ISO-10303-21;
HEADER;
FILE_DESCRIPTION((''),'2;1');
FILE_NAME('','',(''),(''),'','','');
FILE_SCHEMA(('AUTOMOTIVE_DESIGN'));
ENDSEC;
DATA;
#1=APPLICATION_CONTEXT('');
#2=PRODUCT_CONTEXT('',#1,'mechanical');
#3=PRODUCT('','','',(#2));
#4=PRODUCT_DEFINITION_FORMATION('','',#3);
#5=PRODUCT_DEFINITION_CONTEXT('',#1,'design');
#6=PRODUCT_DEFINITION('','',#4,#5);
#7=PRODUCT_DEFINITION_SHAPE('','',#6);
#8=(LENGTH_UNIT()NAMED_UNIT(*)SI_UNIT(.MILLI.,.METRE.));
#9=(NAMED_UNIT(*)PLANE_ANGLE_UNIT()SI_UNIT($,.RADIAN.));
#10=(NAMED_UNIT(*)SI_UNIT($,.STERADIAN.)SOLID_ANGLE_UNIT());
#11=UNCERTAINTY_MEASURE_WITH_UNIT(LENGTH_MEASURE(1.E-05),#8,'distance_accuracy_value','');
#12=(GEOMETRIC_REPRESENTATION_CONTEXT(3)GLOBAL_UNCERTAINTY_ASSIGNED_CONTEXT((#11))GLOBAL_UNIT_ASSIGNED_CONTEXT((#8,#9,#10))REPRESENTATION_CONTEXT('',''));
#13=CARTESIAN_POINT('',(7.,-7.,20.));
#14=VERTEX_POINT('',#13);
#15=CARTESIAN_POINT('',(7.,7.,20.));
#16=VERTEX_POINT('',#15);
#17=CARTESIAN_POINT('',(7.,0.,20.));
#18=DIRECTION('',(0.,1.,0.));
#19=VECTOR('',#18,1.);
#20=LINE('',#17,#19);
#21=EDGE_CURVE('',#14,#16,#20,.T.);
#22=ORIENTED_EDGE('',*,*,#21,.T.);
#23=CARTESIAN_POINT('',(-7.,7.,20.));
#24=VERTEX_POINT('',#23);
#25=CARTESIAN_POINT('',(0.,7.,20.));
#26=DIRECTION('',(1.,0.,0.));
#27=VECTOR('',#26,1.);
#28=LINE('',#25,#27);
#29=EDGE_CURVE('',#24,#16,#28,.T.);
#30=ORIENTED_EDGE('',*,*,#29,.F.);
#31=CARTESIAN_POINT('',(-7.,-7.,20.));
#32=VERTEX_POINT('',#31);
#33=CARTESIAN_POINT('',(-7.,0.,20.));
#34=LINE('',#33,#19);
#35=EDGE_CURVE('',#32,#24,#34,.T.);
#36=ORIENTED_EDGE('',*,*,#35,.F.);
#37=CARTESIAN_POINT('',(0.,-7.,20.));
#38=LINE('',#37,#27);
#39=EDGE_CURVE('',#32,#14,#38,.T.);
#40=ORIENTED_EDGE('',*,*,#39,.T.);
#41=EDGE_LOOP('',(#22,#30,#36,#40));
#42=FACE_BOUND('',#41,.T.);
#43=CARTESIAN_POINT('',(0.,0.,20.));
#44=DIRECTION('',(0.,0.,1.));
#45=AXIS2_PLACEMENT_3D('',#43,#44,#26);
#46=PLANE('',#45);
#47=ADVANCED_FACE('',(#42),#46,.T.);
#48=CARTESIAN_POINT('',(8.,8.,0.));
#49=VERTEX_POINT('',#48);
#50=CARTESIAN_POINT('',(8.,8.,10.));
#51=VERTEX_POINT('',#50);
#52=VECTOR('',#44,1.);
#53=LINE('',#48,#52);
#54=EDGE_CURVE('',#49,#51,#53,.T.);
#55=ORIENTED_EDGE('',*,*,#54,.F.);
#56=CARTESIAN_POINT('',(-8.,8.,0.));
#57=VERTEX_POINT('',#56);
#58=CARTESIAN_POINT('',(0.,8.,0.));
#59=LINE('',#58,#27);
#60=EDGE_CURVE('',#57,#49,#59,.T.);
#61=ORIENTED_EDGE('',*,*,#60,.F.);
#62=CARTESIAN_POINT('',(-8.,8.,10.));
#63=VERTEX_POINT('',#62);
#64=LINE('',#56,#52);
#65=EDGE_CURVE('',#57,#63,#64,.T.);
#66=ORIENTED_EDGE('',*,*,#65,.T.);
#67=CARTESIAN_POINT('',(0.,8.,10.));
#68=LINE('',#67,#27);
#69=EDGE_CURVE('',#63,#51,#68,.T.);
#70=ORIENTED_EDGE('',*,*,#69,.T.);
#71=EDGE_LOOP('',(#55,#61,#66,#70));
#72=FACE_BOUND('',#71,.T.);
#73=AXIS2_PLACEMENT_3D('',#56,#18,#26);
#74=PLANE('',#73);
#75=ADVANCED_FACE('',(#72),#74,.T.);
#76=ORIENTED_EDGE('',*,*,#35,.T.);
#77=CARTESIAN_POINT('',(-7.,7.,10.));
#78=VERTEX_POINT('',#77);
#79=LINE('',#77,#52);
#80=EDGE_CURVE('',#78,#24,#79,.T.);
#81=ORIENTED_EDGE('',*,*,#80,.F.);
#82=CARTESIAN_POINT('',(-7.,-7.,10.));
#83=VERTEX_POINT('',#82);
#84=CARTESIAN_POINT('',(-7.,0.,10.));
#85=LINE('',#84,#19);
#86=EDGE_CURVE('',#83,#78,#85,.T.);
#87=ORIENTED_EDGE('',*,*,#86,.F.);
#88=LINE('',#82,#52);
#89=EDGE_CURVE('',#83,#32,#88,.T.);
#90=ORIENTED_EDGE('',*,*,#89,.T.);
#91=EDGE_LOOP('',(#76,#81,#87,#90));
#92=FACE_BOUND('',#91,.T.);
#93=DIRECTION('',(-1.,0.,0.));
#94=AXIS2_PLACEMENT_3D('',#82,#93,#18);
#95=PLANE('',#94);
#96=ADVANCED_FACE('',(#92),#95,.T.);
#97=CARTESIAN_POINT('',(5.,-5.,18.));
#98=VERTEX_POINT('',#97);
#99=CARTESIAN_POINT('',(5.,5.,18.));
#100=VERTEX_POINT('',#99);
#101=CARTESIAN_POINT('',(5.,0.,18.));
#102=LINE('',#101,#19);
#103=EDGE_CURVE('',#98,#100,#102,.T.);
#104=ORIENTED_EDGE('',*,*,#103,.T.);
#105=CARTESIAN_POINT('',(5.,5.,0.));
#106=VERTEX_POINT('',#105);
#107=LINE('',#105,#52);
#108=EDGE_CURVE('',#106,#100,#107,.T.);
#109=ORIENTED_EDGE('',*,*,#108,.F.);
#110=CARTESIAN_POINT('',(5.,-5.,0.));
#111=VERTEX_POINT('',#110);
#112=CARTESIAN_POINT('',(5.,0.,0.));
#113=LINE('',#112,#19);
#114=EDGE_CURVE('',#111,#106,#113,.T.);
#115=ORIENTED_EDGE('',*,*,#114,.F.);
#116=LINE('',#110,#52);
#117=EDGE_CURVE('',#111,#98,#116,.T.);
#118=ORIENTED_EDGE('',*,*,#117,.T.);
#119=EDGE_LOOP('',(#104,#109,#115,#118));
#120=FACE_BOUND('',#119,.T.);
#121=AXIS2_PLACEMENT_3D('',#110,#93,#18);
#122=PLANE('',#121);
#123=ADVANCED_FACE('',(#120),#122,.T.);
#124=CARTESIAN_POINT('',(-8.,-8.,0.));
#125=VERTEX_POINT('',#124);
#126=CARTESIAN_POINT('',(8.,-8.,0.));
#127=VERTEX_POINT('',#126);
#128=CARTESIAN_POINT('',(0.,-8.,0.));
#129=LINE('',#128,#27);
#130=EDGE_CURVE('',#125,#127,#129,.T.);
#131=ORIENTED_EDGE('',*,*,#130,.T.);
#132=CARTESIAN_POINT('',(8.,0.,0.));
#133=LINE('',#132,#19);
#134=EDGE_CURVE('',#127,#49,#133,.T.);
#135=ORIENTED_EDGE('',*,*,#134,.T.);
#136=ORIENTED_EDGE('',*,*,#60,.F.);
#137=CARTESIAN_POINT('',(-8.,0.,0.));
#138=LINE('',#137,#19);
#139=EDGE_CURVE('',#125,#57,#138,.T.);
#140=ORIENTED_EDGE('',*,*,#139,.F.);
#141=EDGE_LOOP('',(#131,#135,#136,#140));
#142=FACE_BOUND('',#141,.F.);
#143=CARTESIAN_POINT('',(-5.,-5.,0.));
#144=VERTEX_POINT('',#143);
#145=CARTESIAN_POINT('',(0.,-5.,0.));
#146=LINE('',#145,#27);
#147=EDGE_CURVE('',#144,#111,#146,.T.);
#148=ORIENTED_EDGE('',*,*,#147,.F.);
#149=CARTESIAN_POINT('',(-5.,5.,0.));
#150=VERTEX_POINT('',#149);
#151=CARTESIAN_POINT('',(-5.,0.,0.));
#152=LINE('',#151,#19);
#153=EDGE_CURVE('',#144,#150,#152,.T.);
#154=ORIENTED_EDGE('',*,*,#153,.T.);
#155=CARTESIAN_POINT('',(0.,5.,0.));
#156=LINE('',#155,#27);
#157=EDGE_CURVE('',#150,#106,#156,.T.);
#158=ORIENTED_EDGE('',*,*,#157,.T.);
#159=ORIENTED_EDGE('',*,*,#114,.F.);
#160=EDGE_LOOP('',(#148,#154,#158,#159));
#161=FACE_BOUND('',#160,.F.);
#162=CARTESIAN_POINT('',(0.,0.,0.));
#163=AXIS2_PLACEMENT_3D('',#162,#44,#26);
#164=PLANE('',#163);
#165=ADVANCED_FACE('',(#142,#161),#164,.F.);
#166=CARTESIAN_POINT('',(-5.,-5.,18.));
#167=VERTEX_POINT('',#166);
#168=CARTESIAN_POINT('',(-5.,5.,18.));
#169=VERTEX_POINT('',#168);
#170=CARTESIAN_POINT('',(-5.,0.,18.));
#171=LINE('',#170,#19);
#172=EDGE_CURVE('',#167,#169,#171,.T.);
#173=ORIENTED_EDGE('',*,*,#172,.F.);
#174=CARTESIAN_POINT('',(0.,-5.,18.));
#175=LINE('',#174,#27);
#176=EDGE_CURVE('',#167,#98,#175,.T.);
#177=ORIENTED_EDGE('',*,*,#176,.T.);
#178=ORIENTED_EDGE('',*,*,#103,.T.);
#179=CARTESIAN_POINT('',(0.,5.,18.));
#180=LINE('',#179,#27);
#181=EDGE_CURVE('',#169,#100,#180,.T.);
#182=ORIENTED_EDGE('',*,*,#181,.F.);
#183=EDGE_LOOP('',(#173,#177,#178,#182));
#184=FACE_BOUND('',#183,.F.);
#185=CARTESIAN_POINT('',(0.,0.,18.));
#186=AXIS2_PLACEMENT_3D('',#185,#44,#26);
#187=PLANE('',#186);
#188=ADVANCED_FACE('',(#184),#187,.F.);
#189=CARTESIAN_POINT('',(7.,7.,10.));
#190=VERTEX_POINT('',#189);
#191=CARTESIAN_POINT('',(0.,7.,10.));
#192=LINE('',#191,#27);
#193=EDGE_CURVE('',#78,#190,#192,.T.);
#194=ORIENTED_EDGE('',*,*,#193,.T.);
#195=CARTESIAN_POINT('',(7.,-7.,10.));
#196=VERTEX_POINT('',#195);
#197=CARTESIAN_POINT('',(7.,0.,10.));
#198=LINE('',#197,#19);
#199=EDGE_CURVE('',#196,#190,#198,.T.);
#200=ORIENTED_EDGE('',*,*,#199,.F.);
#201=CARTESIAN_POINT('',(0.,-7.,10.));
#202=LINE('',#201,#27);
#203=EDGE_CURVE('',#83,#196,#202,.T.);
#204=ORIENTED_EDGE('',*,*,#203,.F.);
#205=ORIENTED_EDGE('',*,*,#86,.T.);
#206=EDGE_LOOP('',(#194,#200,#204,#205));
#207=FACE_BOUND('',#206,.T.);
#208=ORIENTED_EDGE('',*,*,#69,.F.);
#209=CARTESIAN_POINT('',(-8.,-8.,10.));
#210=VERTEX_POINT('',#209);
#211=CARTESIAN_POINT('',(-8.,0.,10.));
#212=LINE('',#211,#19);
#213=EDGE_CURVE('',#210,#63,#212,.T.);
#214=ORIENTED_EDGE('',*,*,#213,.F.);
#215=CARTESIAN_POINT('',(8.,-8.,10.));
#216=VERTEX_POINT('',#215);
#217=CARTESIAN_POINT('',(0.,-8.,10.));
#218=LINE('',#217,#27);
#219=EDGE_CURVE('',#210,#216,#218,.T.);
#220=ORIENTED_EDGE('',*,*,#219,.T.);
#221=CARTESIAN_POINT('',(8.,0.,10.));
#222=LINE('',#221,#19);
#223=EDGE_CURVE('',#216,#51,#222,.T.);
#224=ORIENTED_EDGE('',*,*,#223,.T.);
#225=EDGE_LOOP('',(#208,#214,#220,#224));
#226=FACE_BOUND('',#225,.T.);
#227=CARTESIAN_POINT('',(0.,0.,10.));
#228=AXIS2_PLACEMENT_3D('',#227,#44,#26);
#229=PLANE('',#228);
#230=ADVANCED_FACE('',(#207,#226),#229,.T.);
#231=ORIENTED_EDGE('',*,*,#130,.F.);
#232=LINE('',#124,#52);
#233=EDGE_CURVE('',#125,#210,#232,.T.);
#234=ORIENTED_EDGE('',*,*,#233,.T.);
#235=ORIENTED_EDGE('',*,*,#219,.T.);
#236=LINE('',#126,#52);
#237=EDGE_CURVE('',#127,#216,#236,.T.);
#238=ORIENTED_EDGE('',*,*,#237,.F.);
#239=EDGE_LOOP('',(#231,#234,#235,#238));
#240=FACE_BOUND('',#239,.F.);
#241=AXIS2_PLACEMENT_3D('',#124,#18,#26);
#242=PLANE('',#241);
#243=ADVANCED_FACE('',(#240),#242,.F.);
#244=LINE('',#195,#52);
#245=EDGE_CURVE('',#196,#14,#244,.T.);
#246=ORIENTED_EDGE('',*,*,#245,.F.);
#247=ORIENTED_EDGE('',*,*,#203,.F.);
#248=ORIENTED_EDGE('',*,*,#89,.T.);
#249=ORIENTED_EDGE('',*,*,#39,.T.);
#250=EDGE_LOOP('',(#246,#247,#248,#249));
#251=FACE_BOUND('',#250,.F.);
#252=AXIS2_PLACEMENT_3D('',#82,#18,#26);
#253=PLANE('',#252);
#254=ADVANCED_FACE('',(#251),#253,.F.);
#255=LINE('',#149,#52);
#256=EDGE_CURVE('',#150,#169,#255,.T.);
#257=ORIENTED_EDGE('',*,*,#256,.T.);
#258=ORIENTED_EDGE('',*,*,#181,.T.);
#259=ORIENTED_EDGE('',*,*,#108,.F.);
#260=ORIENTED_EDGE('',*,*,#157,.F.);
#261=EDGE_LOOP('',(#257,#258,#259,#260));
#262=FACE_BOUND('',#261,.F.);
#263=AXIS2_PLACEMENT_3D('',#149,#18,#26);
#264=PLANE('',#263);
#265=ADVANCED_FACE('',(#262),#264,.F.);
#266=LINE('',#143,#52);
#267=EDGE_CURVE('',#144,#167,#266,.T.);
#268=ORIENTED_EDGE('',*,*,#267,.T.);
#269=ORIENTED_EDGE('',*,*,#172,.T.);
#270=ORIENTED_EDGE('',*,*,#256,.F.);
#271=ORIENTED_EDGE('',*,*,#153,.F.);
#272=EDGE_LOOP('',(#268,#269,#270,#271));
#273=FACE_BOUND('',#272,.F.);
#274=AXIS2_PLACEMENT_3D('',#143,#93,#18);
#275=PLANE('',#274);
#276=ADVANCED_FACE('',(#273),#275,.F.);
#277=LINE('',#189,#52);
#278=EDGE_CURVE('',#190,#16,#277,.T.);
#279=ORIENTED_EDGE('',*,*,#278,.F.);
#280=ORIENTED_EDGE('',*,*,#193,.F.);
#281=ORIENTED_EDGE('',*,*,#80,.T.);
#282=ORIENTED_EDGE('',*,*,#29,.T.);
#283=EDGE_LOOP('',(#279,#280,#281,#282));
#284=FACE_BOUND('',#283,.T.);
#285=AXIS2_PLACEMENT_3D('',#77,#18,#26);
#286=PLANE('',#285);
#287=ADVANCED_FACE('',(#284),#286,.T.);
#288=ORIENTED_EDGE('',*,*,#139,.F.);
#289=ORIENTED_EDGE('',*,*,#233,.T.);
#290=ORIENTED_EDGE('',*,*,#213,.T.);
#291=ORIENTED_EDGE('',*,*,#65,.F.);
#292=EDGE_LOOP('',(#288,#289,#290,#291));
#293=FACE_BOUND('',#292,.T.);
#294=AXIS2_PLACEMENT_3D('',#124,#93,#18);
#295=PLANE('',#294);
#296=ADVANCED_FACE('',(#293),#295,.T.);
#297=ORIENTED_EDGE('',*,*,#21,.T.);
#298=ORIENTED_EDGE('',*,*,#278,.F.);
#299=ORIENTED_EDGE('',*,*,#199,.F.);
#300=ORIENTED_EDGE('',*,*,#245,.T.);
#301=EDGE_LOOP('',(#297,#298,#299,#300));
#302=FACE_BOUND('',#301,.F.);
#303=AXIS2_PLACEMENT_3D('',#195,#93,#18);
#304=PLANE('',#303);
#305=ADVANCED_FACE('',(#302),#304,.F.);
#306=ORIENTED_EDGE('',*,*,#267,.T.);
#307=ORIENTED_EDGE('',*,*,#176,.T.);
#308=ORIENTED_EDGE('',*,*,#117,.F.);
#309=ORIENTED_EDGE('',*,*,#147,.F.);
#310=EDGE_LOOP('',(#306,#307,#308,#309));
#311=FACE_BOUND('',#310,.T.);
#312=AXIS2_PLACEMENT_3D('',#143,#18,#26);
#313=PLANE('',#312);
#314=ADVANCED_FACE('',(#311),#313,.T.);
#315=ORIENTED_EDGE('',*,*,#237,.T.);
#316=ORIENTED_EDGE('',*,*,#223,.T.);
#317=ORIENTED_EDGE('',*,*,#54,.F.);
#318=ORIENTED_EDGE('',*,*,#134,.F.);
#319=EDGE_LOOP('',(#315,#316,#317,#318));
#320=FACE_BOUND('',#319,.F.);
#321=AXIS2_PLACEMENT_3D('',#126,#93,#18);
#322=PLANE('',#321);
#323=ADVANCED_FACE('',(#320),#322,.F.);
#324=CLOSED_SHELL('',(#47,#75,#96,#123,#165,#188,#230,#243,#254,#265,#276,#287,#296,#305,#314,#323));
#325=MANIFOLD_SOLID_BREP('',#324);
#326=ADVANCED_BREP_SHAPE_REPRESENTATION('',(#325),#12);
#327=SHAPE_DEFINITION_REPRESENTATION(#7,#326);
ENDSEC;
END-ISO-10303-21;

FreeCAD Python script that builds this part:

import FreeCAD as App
import Part
import Sketcher
from FreeCAD import Vector

doc = App.newDocument("Part")
body = doc.addObject("PartDesign::Body", "Body")

sketch1 = doc.addObject("Sketcher::SketchObject", "Sketch")
body.addObject(sketch1)
sketch1.AttachmentSupport = (doc.XY_Plane, [""])
sketch1.MapMode = "FlatFace"
sketch1.addGeometry(Part.LineSegment(Vector(-5, 5, 0), Vector(-5, -5, 0)), False)
sketch1.addGeometry(Part.LineSegment(Vector(-5, -5, 0), Vector(5, -5, 0)), False)
sketch1.addGeometry(Part.LineSegment(Vector(5, -5, 0), Vector(5, 5, 0)), False)
sketch1.addGeometry(Part.LineSegment(Vector(5, 5, 0), Vector(-5, 5, 0)), False)
sketch1.addConstraint(Sketcher.Constraint("Coincident", 0, 2, 1, 1))
sketch1.addConstraint(Sketcher.Constraint("Coincident", 1, 2, 2, 1))
sketch1.addConstraint(Sketcher.Constraint("Coincident", 2, 2, 3, 1))
sketch1.addConstraint(Sketcher.Constraint("Coincident", 3, 2, 0, 1))
sketch1.addConstraint(Sketcher.Constraint("Vertical", 0))
sketch1.addConstraint(Sketcher.Constraint("Horizontal", 1))
sketch1.addConstraint(Sketcher.Constraint("Vertical", 2))
sketch1.addConstraint(Sketcher.Constraint("Horizontal", 3))
sketch1.addConstraint(Sketcher.Constraint("Symmetric", 0, 2, 2, 2, -1, 1))
sketch1.addConstraint(Sketcher.Constraint("Equal", 3, 0))
sketch1.addConstraint(Sketcher.Constraint("DistanceX", 1, 1, 1, 2, 10.0))
pad1 = doc.addObject("PartDesign::Pad", "Pad")
body.addObject(pad1)
pad1.Profile = sketch1
pad1.Length = 18
body2 = doc.addObject("PartDesign::Body", "Body001")

sketch2 = doc.addObject("Sketcher::SketchObject", "Sketch001")
body2.addObject(sketch2)
sketch2.AttachmentSupport = (doc.getObject("XY_Plane001"), [""])
sketch2.MapMode = "FlatFace"
sketch2.AttachmentOffset = App.Placement(Vector(0, 0, 10), App.Rotation())
sketch2.addGeometry(Part.LineSegment(Vector(-7, 7, 0), Vector(-7, -7, 0)), False)
sketch2.addGeometry(Part.LineSegment(Vector(-7, -7, 0), Vector(7, -7, 0)), False)
sketch2.addGeometry(Part.LineSegment(Vector(7, -7, 0), Vector(7, 7, 0)), False)
sketch2.addGeometry(Part.LineSegment(Vector(7, 7, 0), Vector(-7, 7, 0)), False)
sketch2.addConstraint(Sketcher.Constraint("Coincident", 0, 2, 1, 1))
sketch2.addConstraint(Sketcher.Constraint("Coincident", 1, 2, 2, 1))
sketch2.addConstraint(Sketcher.Constraint("Coincident", 2, 2, 3, 1))
sketch2.addConstraint(Sketcher.Constraint("Coincident", 3, 2, 0, 1))
sketch2.addConstraint(Sketcher.Constraint("Vertical", 0))
sketch2.addConstraint(Sketcher.Constraint("Horizontal", 1))
sketch2.addConstraint(Sketcher.Constraint("Vertical", 2))
sketch2.addConstraint(Sketcher.Constraint("Horizontal", 3))
sketch2.addConstraint(Sketcher.Constraint("Symmetric", 0, 2, 2, 2, -1, 1))
sketch2.addConstraint(Sketcher.Constraint("Equal", 3, 0))
sketch2.addConstraint(Sketcher.Constraint("DistanceX", 1, 1, 1, 2, 14.0))
pad2 = doc.addObject("PartDesign::Pad", "Pad001")
body2.addObject(pad2)
pad2.Profile = sketch2
pad2.Length = 10
body3 = doc.addObject("PartDesign::Body", "Body002")

sketch3 = doc.addObject("Sketcher::SketchObject", "Sketch002")
body3.addObject(sketch3)
sketch3.AttachmentSupport = (doc.getObject("XY_Plane002"), [""])
sketch3.MapMode = "FlatFace"
sketch3.addGeometry(Part.LineSegment(Vector(-8, 8, 0), Vector(-8, -8, 0)), False)
sketch3.addGeometry(Part.LineSegment(Vector(-8, -8, 0), Vector(8, -8, 0)), False)
sketch3.addGeometry(Part.LineSegment(Vector(8, -8, 0), Vector(8, 8, 0)), False)
sketch3.addGeometry(Part.LineSegment(Vector(8, 8, 0), Vector(-8, 8, 0)), False)
sketch3.addConstraint(Sketcher.Constraint("Coincident", 0, 2, 1, 1))
sketch3.addConstraint(Sketcher.Constraint("Coincident", 1, 2, 2, 1))
sketch3.addConstraint(Sketcher.Constraint("Coincident", 2, 2, 3, 1))
sketch3.addConstraint(Sketcher.Constraint("Coincident", 3, 2, 0, 1))
sketch3.addConstraint(Sketcher.Constraint("Vertical", 0))
sketch3.addConstraint(Sketcher.Constraint("Horizontal", 1))
sketch3.addConstraint(Sketcher.Constraint("Vertical", 2))
sketch3.addConstraint(Sketcher.Constraint("Horizontal", 3))
sketch3.addConstraint(Sketcher.Constraint("Symmetric", 0, 2, 2, 2, -1, 1))
sketch3.addConstraint(Sketcher.Constraint("Equal", 3, 0))
sketch3.addConstraint(Sketcher.Constraint("DistanceX", 1, 1, 1, 2, 16.0))
pad3 = doc.addObject("PartDesign::Pad", "Pad002")
body3.addObject(pad3)
pad3.Profile = sketch3
pad3.Length = 10
doc.recompute()

boolean = doc.addObject("PartDesign::Boolean", "Boolean")
body3.addObject(boolean)
boolean.Type = "Fuse"
boolean.addObjects([body2])
doc.recompute()

boolean2 = doc.addObject("PartDesign::Boolean", "Boolean001")
body3.addObject(boolean2)
boolean2.Type = "Cut"
boolean2.addObjects([body])

doc.recompute()
